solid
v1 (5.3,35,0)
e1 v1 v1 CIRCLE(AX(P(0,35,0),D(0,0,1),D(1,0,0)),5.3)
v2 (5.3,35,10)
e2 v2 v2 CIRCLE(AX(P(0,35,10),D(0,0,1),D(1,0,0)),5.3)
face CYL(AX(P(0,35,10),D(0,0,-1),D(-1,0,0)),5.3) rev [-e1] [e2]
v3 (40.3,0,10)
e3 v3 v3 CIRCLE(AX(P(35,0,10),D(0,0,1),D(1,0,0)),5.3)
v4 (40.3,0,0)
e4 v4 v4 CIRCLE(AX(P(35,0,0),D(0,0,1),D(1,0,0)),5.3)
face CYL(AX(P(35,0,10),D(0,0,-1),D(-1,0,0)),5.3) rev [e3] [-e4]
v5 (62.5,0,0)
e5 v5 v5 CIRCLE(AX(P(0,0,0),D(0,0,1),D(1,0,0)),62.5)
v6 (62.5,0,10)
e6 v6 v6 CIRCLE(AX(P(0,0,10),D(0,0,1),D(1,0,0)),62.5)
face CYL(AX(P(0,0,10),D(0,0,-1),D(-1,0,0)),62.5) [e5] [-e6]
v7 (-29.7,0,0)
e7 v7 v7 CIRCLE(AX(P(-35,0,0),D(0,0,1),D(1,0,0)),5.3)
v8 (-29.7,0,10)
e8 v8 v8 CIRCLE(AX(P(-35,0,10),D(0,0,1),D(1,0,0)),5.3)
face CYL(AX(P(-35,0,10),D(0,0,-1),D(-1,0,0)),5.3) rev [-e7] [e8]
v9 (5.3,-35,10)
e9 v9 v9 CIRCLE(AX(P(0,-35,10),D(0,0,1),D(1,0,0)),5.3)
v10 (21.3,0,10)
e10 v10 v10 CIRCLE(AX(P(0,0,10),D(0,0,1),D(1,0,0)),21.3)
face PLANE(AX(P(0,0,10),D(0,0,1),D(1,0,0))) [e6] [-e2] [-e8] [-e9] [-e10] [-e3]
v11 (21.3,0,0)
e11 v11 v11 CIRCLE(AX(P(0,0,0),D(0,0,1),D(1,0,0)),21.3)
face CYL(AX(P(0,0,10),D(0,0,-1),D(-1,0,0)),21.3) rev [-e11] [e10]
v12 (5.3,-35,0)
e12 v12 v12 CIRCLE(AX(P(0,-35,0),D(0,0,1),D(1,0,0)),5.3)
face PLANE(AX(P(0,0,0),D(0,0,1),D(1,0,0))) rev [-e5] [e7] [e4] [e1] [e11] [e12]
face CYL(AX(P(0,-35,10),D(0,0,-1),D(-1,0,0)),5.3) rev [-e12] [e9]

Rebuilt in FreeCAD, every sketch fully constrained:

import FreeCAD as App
import Part
import Sketcher

V = App.Vector
Q = App.Units.Quantity

doc = App.newDocument("Part")
params = doc.addObject("Spreadsheet::Sheet", "Params")
for row, (alias, value) in enumerate([
    ("sketch1_diameter", "125 mm"),
    ("sketch1_diameter2", "10.6 mm"),
    ("sketch1_diameter3", "42.6 mm"),
    ("pad1_length", "10 mm"),
], start=1):
    params.set(f"A{row}", alias)
    params.set(f"B{row}", "=" + value)
    params.setAlias(f"B{row}", alias)

body = doc.addObject("PartDesign::Body", "Body")

# Sketch on XY plane
sketch1 = body.newObject("Sketcher::SketchObject", "Sketch")
sketch1.AttachmentSupport = (doc.getObject("XY_Plane"), [""])
sketch1.MapMode = "FlatFace"
sketch1.addGeometry(Part.Circle(V(0, 0, 0), V(0, 0, 1), 62.5), False)
sketch1.addGeometry(Part.Circle(V(0, -35, 0), V(0, 0, 1), 5.3), False)
sketch1.addGeometry(Part.Circle(V(-35, 0, 0), V(0, 0, 1), 5.3), False)
sketch1.addGeometry(Part.Circle(V(0, 0, 0), V(0, 0, 1), 21.3), False)
sketch1.addGeometry(Part.Circle(V(35, 0, 0), V(0, 0, 1), 5.3), False)
sketch1.addGeometry(Part.Circle(V(0, 35, 0), V(0, 0, 1), 5.3), False)
sketch1.addConstraint(Sketcher.Constraint("Coincident", 0, 3, -1, 1))
sketch1.addConstraint(Sketcher.Constraint("Coincident", 3, 3, -1, 1))
sketch1.addConstraint(Sketcher.Constraint("Equal", 1, 2))
sketch1.addConstraint(Sketcher.Constraint("Equal", 2, 4))
sketch1.addConstraint(Sketcher.Constraint("Equal", 4, 5))
sketch1.addConstraint(Sketcher.Constraint("Symmetric", 2, 3, 4, 3, -1, 1))
sketch1.addConstraint(Sketcher.Constraint("Symmetric", 1, 3, 5, 3, -1, 1))
sketch1.addConstraint(Sketcher.Constraint("PointOnObject", 1, 3, -2))
sketch1.addConstraint(Sketcher.Constraint("PointOnObject", 2, 3, -1))
sketch1.addConstraint(Sketcher.Constraint("Diameter", 0, Q("125 mm")))
sketch1.addConstraint(Sketcher.Constraint("Diameter", 1, Q("10.6 mm")))
sketch1.addConstraint(Sketcher.Constraint("Diameter", 3, Q("42.6 mm")))
sketch1.addConstraint(Sketcher.Constraint("DistanceY", 1, 3, -1, 1, Q("35 mm")))
sketch1.addConstraint(Sketcher.Constraint("DistanceX", 2, 3, -1, 1, Q("35 mm")))
sketch1.setExpression("Constraints[9]", "Params.sketch1_diameter")
sketch1.setExpression("Constraints[10]", "Params.sketch1_diameter2")
sketch1.setExpression("Constraints[11]", "Params.sketch1_diameter3")
pad1 = body.newObject("PartDesign::Pad", "Pad")
pad1.Profile = sketch1
pad1.setExpression("Length", "Params.pad1_length")

doc.recompute()
